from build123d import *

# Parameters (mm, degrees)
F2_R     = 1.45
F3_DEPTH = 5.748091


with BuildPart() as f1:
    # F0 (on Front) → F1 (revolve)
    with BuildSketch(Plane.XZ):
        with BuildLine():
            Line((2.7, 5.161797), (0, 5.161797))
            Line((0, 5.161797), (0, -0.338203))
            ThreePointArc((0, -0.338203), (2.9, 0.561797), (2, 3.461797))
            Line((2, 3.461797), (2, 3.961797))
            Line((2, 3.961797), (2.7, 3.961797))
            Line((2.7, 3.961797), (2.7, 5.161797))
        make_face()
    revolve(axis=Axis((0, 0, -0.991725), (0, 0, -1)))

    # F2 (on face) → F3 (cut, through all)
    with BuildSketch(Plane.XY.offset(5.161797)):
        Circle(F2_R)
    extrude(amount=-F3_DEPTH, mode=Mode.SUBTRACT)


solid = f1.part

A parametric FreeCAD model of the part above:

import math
import FreeCAD as App
import Part
import Sketcher

V = App.Vector

doc = App.newDocument("Part")
body = doc.addObject("PartDesign::Body", "Body")

sketch1 = body.newObject("Sketcher::SketchObject", "Sketch")
sketch1.AttachmentSupport = (doc.getObject("XZ_Plane"), [""])
sketch1.MapMode = "FlatFace"
sketch1.addGeometry(Part.LineSegment(V(2.7, 5.2, 0), V(0, 5.2, 0)), False)
sketch1.addGeometry(Part.LineSegment(V(0, 5.2, 0), V(0, -0.3, 0)), False)
sketch1.addGeometry(Part.ArcOfCircle(Part.Circle(V(1, 1.6, 0), V(0, 0, 1), 2.1), math.radians(-118), math.radians(62)), False)
sketch1.addGeometry(Part.LineSegment(V(2, 3.5, 0), V(2, 4, 0)), False)
sketch1.addGeometry(Part.LineSegment(V(2, 4, 0), V(2.7, 4, 0)), False)
sketch1.addGeometry(Part.LineSegment(V(2.7, 4, 0), V(2.7, 5.2, 0)), False)
sketch1.addConstraint(Sketcher.Constraint("Coincident", 0, 2, 1, 1))
sketch1.addConstraint(Sketcher.Constraint("Coincident", 1, 2, 2, 1))
sketch1.addConstraint(Sketcher.Constraint("Coincident", 2, 2, 3, 1))
sketch1.addConstraint(Sketcher.Constraint("Coincident", 3, 2, 4, 1))
sketch1.addConstraint(Sketcher.Constraint("Coincident", 4, 2, 5, 1))
sketch1.addConstraint(Sketcher.Constraint("Coincident", 5, 2, 0, 1))
sketch1.addConstraint(Sketcher.Constraint("Horizontal", 0))
sketch1.addConstraint(Sketcher.Constraint("Vertical", 1))
sketch1.addConstraint(Sketcher.Constraint("Vertical", 3))
sketch1.addConstraint(Sketcher.Constraint("Horizontal", 4))
sketch1.addConstraint(Sketcher.Constraint("Vertical", 5))
sketch1.addConstraint(Sketcher.Constraint("PointOnObject", 0, 2, -2))
sketch1.addConstraint(Sketcher.Constraint("DistanceX", 0, 2, 0, 1, 2.7))
sketch1.addConstraint(Sketcher.Constraint("DistanceX", 4, 1, 4, 2, 0.7))
sketch1.addConstraint(Sketcher.Constraint("DistanceY", 1, 2, 1, 1, 5.5))
sketch1.addConstraint(Sketcher.Constraint("DistanceY", 3, 1, 3, 2, 0.5))
sketch1.addConstraint(Sketcher.Constraint("DistanceY", 5, 1, 5, 2, 1.2))
sketch1.addConstraint(Sketcher.Constraint("DistanceX", -1, 1, 2, 3, 1.0))
sketch1.addConstraint(Sketcher.Constraint("DistanceY", -1, 1, 2, 3, 1.561797))
revolution = body.newObject("PartDesign::Revolution", "Revolution")
revolution.Profile = sketch1
revolution.ReferenceAxis = (sketch1, ["V_Axis"])
revolution.Angle = 360

sketch2 = body.newObject("Sketcher::SketchObject", "Sketch001")
sketch2.AttachmentSupport = (doc.getObject("XY_Plane"), [""])
sketch2.MapMode = "FlatFace"
sketch2.AttachmentOffset = App.Placement(V(0, 0, 5.161797), App.Rotation())
sketch2.addGeometry(Part.Circle(V(0, 0, 0), V(0, 0, 1), 1.4), False)
sketch2.addConstraint(Sketcher.Constraint("Coincident", 0, 3, -1, 1))
sketch2.addConstraint(Sketcher.Constraint("Diameter", 0, 2.9))
pocket1 = body.newObject("PartDesign::Pocket", "Pocket")
pocket1.Profile = sketch2
pocket1.Type = "ThroughAll"

doc.recompute()
